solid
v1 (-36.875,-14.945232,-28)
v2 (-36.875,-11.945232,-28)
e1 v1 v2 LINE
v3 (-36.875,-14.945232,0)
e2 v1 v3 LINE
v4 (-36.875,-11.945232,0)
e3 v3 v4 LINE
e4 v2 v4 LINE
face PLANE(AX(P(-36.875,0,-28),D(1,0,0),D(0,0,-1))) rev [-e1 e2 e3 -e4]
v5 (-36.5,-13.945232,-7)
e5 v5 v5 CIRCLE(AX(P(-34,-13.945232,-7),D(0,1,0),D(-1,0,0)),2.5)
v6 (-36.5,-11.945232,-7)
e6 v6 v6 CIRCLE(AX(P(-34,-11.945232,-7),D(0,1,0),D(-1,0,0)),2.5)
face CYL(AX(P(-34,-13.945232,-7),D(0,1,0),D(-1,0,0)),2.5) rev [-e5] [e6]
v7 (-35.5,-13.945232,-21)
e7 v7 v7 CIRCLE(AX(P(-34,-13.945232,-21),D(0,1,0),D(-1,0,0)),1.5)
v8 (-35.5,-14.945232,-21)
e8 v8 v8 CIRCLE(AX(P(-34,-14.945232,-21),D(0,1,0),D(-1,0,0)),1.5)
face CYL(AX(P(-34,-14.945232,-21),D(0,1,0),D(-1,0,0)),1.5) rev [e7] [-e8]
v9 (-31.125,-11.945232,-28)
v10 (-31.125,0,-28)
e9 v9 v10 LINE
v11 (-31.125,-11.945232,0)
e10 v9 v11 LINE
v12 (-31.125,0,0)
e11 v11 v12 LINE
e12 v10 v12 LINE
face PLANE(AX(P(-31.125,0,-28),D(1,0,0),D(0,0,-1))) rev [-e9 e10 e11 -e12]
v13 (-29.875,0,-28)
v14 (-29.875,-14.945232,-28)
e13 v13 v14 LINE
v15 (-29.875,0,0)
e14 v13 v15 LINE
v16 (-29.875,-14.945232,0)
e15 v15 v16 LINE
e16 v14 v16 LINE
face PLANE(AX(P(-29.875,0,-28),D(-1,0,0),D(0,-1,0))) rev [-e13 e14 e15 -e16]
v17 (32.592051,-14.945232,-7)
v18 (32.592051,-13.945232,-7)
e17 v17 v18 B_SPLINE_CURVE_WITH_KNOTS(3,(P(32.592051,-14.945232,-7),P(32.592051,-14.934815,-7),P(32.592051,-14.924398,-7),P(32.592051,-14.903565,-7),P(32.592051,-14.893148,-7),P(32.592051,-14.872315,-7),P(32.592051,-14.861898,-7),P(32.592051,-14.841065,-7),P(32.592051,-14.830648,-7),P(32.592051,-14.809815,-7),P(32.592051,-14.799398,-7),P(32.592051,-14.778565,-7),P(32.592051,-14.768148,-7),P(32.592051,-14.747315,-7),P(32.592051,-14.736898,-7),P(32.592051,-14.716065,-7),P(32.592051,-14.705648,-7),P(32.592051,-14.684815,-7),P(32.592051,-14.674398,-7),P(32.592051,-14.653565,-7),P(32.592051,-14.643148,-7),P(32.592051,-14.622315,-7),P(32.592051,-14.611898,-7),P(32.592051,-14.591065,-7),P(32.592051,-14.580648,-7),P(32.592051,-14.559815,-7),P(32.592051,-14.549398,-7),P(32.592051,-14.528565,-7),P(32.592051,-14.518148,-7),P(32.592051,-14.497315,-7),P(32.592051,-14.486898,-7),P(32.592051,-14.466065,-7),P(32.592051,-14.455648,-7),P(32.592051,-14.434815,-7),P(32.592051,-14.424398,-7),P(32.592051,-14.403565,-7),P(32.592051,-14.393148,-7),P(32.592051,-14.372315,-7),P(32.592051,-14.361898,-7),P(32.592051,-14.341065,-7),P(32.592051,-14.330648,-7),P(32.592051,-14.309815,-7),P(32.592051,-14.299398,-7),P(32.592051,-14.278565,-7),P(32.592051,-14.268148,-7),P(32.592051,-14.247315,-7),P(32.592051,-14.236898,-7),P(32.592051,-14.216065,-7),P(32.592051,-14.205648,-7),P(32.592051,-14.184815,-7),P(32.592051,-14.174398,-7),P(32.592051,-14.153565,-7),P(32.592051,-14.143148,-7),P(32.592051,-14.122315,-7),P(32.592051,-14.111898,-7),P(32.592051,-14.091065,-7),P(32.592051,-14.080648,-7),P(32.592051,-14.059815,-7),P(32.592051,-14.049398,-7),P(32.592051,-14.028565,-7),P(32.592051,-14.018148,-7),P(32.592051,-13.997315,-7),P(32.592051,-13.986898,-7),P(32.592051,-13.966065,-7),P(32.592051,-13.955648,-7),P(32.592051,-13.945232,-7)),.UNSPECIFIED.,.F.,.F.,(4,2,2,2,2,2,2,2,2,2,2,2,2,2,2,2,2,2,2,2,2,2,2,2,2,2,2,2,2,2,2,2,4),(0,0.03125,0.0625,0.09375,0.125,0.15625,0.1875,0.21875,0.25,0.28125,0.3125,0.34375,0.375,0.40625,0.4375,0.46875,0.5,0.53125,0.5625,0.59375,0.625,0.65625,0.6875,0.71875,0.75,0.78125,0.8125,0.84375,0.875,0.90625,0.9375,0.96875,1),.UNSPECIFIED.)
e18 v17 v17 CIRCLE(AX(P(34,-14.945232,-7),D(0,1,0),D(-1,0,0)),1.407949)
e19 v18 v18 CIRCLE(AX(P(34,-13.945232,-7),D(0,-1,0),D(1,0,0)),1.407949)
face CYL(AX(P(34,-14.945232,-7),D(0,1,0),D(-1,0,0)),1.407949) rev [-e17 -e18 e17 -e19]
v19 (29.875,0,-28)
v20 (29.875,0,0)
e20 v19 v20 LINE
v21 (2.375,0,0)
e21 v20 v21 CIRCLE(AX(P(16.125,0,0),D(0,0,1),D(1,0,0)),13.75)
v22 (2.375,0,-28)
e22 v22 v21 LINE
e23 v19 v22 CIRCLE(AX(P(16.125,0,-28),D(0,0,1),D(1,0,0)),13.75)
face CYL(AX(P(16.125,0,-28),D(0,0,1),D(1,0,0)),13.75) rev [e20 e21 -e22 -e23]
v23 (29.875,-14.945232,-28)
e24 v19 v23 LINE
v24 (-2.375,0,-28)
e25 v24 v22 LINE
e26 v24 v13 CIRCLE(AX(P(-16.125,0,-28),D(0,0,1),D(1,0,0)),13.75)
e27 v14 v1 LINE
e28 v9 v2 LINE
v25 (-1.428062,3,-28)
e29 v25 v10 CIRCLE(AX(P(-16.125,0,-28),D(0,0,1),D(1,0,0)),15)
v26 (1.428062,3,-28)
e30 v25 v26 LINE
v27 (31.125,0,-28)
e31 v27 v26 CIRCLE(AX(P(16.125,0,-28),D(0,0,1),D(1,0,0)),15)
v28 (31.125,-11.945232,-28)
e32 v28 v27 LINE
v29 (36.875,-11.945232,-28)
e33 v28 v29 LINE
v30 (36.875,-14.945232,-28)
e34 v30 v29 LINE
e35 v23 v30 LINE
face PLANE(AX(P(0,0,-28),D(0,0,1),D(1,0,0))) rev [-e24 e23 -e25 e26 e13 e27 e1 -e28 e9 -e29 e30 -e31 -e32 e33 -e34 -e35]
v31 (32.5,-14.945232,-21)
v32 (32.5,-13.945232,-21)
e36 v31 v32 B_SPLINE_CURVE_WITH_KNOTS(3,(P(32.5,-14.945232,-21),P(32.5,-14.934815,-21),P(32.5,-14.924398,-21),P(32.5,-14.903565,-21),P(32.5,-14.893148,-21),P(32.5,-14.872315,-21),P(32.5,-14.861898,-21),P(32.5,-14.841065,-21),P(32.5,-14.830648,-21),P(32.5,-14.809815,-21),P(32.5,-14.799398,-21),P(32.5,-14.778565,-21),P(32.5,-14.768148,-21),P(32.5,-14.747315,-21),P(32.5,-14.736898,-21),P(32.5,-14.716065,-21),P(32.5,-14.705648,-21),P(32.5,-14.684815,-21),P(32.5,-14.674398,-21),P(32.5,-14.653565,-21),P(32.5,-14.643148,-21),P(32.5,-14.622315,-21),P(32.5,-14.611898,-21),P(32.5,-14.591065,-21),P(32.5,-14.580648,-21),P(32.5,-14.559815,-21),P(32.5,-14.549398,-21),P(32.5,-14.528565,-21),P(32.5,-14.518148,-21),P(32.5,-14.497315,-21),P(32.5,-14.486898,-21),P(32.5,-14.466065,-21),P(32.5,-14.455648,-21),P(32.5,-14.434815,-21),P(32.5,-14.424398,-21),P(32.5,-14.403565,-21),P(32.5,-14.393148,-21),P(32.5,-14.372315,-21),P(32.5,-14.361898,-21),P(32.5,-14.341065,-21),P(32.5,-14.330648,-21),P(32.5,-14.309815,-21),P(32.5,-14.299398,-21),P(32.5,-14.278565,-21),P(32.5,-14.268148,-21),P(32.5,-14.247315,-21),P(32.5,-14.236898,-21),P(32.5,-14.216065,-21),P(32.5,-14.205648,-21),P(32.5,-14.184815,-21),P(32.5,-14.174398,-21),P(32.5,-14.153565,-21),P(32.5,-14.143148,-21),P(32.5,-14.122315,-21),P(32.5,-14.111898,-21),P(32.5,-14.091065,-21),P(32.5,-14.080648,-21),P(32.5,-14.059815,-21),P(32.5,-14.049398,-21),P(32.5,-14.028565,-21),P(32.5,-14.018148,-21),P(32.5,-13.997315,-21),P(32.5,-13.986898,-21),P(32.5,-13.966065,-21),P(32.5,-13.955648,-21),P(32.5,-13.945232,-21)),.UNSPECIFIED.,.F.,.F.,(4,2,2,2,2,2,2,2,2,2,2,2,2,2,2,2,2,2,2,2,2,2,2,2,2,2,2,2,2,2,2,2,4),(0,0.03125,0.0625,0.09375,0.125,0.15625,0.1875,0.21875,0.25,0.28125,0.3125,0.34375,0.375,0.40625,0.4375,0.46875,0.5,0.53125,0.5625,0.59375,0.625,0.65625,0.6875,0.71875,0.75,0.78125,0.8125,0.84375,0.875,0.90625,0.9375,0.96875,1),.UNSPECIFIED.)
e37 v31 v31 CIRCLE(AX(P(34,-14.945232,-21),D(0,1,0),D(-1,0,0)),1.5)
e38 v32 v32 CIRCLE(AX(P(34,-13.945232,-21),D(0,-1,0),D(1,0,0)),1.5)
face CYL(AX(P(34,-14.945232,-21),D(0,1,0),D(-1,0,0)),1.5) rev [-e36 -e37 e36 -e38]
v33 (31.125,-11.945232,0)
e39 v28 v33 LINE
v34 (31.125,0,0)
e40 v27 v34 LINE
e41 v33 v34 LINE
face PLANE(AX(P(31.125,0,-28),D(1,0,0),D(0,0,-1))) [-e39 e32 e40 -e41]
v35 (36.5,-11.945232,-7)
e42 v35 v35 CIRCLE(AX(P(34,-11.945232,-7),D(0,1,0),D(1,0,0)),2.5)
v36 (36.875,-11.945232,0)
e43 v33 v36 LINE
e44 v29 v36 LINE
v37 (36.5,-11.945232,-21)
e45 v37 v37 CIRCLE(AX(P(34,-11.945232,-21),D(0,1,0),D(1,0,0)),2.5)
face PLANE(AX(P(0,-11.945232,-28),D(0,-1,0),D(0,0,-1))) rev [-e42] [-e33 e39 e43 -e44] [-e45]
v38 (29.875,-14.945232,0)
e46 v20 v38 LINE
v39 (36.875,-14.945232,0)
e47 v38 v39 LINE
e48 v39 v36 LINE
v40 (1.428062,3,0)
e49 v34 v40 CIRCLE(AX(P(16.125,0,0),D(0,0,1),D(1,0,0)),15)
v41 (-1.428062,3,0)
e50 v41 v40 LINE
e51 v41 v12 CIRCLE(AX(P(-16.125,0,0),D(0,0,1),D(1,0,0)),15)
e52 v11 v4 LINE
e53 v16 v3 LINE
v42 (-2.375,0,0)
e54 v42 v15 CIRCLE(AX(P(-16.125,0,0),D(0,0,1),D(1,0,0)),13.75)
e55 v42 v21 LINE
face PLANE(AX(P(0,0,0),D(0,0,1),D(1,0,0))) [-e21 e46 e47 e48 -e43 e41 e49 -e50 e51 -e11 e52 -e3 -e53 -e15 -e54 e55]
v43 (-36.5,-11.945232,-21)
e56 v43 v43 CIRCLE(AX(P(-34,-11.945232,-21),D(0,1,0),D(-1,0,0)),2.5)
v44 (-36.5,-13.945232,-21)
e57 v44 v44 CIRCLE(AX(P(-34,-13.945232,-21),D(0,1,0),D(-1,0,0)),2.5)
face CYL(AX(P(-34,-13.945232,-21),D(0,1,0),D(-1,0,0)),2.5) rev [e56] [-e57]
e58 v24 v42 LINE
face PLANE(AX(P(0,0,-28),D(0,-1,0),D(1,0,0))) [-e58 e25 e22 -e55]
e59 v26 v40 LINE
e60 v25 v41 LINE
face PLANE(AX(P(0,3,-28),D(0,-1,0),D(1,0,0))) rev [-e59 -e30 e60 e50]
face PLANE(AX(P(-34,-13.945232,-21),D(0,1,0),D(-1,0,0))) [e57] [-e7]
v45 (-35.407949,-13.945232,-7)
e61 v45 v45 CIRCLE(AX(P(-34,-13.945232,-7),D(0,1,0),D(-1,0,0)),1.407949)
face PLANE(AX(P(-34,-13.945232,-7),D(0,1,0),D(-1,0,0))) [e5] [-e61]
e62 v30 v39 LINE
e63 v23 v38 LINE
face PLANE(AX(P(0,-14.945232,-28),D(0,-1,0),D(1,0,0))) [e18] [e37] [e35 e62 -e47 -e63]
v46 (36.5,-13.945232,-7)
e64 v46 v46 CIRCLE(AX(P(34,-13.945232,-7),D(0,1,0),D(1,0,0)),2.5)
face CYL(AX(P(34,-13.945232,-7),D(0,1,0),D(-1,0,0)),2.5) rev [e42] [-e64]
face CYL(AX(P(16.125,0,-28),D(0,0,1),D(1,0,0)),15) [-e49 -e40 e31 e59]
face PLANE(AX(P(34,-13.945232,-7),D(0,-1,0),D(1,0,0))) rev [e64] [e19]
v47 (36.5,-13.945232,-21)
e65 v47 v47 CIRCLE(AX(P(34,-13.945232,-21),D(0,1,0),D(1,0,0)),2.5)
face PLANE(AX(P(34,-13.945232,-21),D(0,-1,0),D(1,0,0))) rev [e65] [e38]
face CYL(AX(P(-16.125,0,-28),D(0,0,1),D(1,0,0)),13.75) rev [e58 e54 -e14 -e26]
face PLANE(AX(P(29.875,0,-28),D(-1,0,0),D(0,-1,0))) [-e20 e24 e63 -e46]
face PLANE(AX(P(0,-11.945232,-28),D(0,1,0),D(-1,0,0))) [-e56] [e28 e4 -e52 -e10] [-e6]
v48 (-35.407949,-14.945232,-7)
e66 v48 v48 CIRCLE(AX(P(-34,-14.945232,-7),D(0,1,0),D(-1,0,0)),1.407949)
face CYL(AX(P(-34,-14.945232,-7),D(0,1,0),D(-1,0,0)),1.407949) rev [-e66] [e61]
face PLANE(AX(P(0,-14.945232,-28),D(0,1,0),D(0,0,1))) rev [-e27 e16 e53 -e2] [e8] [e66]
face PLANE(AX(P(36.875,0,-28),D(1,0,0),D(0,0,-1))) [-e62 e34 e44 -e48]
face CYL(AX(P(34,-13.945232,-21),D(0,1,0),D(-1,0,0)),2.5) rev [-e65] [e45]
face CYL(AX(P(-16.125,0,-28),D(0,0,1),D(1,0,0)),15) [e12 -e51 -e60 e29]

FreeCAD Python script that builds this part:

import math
import FreeCAD as App
import Part
import Sketcher

V = App.Vector

doc = App.newDocument("Part")
body = doc.addObject("PartDesign::Body", "Body")

# Sketch on XY plane
sketch1 = doc.addObject("Sketcher::SketchObject", "Sketch")
body.addObject(sketch1)
sketch1.AttachmentSupport = (doc.XY_Plane, [""])
sketch1.MapMode = "FlatFace"
sketch1.addGeometry([
    Part.ArcOfCircle(Part.Circle(V(-16.125, 0, 0), V(0, 0, 1), 13.75), math.radians(0), math.radians(180)),  # 0
    Part.LineSegment(V(-2.375, 0, 0), V(2.375, 0, 0)),  # 1
    Part.ArcOfCircle(Part.Circle(V(16.125, 0, 0), V(0, 0, 1), 13.75), math.radians(0), math.radians(180)),  # 2
    Part.LineSegment(V(29.875, 0, 0), V(29.875, -14.945232, 0)),  # 3
    Part.LineSegment(V(29.875, -14.945232, 0), V(36.875, -14.945232, 0)),  # 4
    Part.LineSegment(V(36.875, -14.945232, 0), V(36.875, -11.945232, 0)),  # 5
    Part.LineSegment(V(36.875, -11.945232, 0), V(31.125, -11.945232, 0)),  # 6
    Part.LineSegment(V(31.125, -11.945232, 0), V(31.125, 0, 0)),  # 7
    Part.ArcOfCircle(Part.Circle(V(16.125, 0, 0), V(0, 0, 1), 15), math.radians(0), math.radians(168.463041)),  # 8
    Part.LineSegment(V(1.428062, 3, 0), V(-1.428062, 3, 0)),  # 9
    Part.ArcOfCircle(Part.Circle(V(-16.125, 0, 0), V(0, 0, 1), 15), math.radians(11.536959), math.radians(180)),  # 10
    Part.LineSegment(V(-31.125, 0, 0), V(-31.125, -11.945232, 0)),  # 11
    Part.LineSegment(V(-31.125, -11.945232, 0), V(-36.875, -11.945232, 0)),  # 12
    Part.LineSegment(V(-36.875, -11.945232, 0), V(-36.875, -14.945232, 0)),  # 13
    Part.LineSegment(V(-36.875, -14.945232, 0), V(-29.875, -14.945232, 0)),  # 14
    Part.LineSegment(V(-29.875, -14.945232, 0), V(-29.875, 0, 0)),  # 15
], False)
sketch1.addConstraint([
    Sketcher.Constraint("Coincident", 0, 1, 1, 1),
    Sketcher.Constraint("Coincident", 1, 2, 2, 2),
    Sketcher.Constraint("Tangent", 2, 1, 3, 1),
    Sketcher.Constraint("Coincident", 3, 2, 4, 1),
    Sketcher.Constraint("Coincident", 4, 2, 5, 1),
    Sketcher.Constraint("Coincident", 5, 2, 6, 1),
    Sketcher.Constraint("Coincident", 6, 2, 7, 1),
    Sketcher.Constraint("Tangent", 7, 2, 8, 1),
    Sketcher.Constraint("Coincident", 8, 2, 9, 1),
    Sketcher.Constraint("Coincident", 9, 2, 10, 1),
    Sketcher.Constraint("Tangent", 10, 2, 11, 1),
    Sketcher.Constraint("Coincident", 11, 2, 12, 1),
    Sketcher.Constraint("Coincident", 12, 2, 13, 1),
    Sketcher.Constraint("Coincident", 13, 2, 14, 1),
    Sketcher.Constraint("Coincident", 14, 2, 15, 1),
    Sketcher.Constraint("Tangent", 15, 2, 0, 2),
    Sketcher.Constraint("Horizontal", 1),
    Sketcher.Constraint("Vertical", 3),
    Sketcher.Constraint("Horizontal", 4),
    Sketcher.Constraint("Vertical", 5),
    Sketcher.Constraint("Horizontal", 6),
    Sketcher.Constraint("Vertical", 7),
    Sketcher.Constraint("Horizontal", 9),
    Sketcher.Constraint("Vertical", 11),
    Sketcher.Constraint("Horizontal", 12),
    Sketcher.Constraint("Vertical", 13),
    Sketcher.Constraint("Horizontal", 14),
    Sketcher.Constraint("Vertical", 15),
    Sketcher.Constraint("Coincident", 8, 3, 2, 3),
    Sketcher.Constraint("Coincident", 10, 3, 0, 3),
    Sketcher.Constraint("Equal", 0, 2),
    Sketcher.Constraint("Equal", 8, 10),
    Sketcher.Constraint("Symmetric", 0, 3, 2, 3, -1, 1),
    Sketcher.Constraint("Symmetric", 5, 2, 12, 2, -2),
    Sketcher.Constraint("PointOnObject", 0, 3, -1),
    Sketcher.Constraint("PointOnObject", 0, 1, -1),
    Sketcher.Constraint("Horizontal", 4, 2, 13, 2),
    Sketcher.Constraint("Radius", 8, 15.0),
    Sketcher.Constraint("DistanceX", 4, 1, 4, 2, 7.0),
    Sketcher.Constraint("DistanceY", 5, 1, 5, 2, 3.0),
    Sketcher.Constraint("Radius", 0, 13.75),
    Sketcher.Constraint("DistanceY", -1, 1, 8, 2, 3.0),
    Sketcher.Constraint("DistanceX", 0, 3, 2, 1, 46.0),
    Sketcher.Constraint("DistanceY", 3, 2, 3, 1, 14.945232),
])
pad1 = doc.addObject("PartDesign::Pad", "Pad")
body.addObject(pad1)
pad1.Profile = sketch1
pad1.Length = 28
pad1.Reversed = True

# Sketch on XZ plane
sketch2 = doc.addObject("Sketcher::SketchObject", "Sketch001")
body.addObject(sketch2)
sketch2.AttachmentSupport = (doc.XZ_Plane, [""])
sketch2.MapMode = "FlatFace"
sketch2.AttachmentOffset = App.Placement(V(0, 0, 11.945232), App.Rotation())
sketch2.addGeometry([
    Part.Circle(V(-34, -21, 0), V(0, 0, 1), 2.5),  # 0
    Part.Circle(V(-34, -21, 0), V(0, 0, 1), 1.5),  # 1
    Part.Circle(V(-34, -7, 0), V(0, 0, 1), 2.5),  # 2
    Part.Circle(V(-34, -7, 0), V(0, 0, 1), 1.407949),  # 3
    Part.Circle(V(34, -7, 0), V(0, 0, 1), 2.5),  # 4
    Part.Circle(V(34, -7, 0), V(0, 0, 1), 1.407949),  # 5
    Part.Circle(V(34, -21, 0), V(0, 0, 1), 2.5),  # 6
    Part.Circle(V(34, -21, 0), V(0, 0, 1), 1.5),  # 7
], False)
sketch2.addConstraint([
    Sketcher.Constraint("Coincident", 1, 3, 0, 3),
    Sketcher.Constraint("Coincident", 3, 3, 2, 3),
    Sketcher.Constraint("Coincident", 5, 3, 4, 3),
    Sketcher.Constraint("Coincident", 7, 3, 6, 3),
    Sketcher.Constraint("Equal", 0, 2),
    Sketcher.Constraint("Equal", 2, 4),
    Sketcher.Constraint("Equal", 3, 5),
    Sketcher.Constraint("Equal", 4, 6),
    Sketcher.Constraint("Equal", 1, 7),
    Sketcher.Constraint("Symmetric", 2, 3, 4, 3, -2),
    Sketcher.Constraint("Symmetric", 0, 3, 6, 3, -2),
    Sketcher.Constraint("Vertical", 1, 3, 2, 3),
    Sketcher.Constraint("Diameter", 0, 5.0),
    Sketcher.Constraint("Diameter", 1, 3.0),
    Sketcher.Constraint("DistanceX", 0, 3, -1, 1, 34.0),
    Sketcher.Constraint("DistanceY", 0, 3, -1, 1, 21.0),
    Sketcher.Constraint("DistanceY", 2, 3, -1, 1, 7.0),
    Sketcher.Constraint("Diameter", 3, 2.815898),
])
pocket1 = doc.addObject("PartDesign::Pocket", "Pocket")
body.addObject(pocket1)
pocket1.Profile = sketch2
pocket1.Length = 2
pocket1.Reversed = True

# Sketch on XZ plane
sketch3 = doc.addObject("Sketcher::SketchObject", "Sketch002")
body.addObject(sketch3)
sketch3.AttachmentSupport = (doc.XZ_Plane, [""])
sketch3.MapMode = "FlatFace"
sketch3.AttachmentOffset = App.Placement(V(0, 0, 11.945232), App.Rotation())
sketch3.addGeometry([
    Part.Circle(V(-34, -7, 0), V(0, 0, 1), 1.407949),
    Part.Circle(V(-34, -21, 0), V(0, 0, 1), 1.5),
], False)
sketch3.addConstraint([
    Sketcher.Constraint("Vertical", 0, 3, 1, 3),
    Sketcher.Constraint("Diameter", 1, 3.0),
    Sketcher.Constraint("DistanceX", 0, 3, -1, 1, 34.0),
    Sketcher.Constraint("DistanceY", 0, 3, -1, 1, 7.0),
    Sketcher.Constraint("DistanceY", 1, 3, -1, 1, 21.0),
    Sketcher.Constraint("Diameter", 0, 2.815898),
])
pocket2 = doc.addObject("PartDesign::Pocket", "Pocket001")
body.addObject(pocket2)
pocket2.Profile = sketch3
pocket2.Type = "ThroughAll"
pocket2.Reversed = True

# Sketch on XZ plane
sketch4 = doc.addObject("Sketcher::SketchObject", "Sketch003")
body.addObject(sketch4)
sketch4.AttachmentSupport = (doc.XZ_Plane, [""])
sketch4.MapMode = "FlatFace"
sketch4.AttachmentOffset = App.Placement(V(0, 0, 11.945232), App.Rotation())
sketch4.addGeometry([
    Part.Circle(V(34, -7, 0), V(0, 0, 1), 1.407949),
    Part.Circle(V(34, -21, 0), V(0, 0, 1), 1.5),
], False)
sketch4.addConstraint([
    Sketcher.Constraint("Vertical", 0, 3, 1, 3),
    Sketcher.Constraint("Diameter", 1, 3.0),
    Sketcher.Constraint("DistanceX", -1, 1, 0, 3, 34.0),
    Sketcher.Constraint("DistanceY", 0, 3, -1, 1, 7.0),
    Sketcher.Constraint("DistanceY", 1, 3, -1, 1, 21.0),
    Sketcher.Constraint("Diameter", 0, 2.815898),
])
pocket3 = doc.addObject("PartDesign::Pocket", "Pocket002")
body.addObject(pocket3)
pocket3.Profile = sketch4
pocket3.Type = "ThroughAll"
pocket3.Reversed = True

doc.recompute()
